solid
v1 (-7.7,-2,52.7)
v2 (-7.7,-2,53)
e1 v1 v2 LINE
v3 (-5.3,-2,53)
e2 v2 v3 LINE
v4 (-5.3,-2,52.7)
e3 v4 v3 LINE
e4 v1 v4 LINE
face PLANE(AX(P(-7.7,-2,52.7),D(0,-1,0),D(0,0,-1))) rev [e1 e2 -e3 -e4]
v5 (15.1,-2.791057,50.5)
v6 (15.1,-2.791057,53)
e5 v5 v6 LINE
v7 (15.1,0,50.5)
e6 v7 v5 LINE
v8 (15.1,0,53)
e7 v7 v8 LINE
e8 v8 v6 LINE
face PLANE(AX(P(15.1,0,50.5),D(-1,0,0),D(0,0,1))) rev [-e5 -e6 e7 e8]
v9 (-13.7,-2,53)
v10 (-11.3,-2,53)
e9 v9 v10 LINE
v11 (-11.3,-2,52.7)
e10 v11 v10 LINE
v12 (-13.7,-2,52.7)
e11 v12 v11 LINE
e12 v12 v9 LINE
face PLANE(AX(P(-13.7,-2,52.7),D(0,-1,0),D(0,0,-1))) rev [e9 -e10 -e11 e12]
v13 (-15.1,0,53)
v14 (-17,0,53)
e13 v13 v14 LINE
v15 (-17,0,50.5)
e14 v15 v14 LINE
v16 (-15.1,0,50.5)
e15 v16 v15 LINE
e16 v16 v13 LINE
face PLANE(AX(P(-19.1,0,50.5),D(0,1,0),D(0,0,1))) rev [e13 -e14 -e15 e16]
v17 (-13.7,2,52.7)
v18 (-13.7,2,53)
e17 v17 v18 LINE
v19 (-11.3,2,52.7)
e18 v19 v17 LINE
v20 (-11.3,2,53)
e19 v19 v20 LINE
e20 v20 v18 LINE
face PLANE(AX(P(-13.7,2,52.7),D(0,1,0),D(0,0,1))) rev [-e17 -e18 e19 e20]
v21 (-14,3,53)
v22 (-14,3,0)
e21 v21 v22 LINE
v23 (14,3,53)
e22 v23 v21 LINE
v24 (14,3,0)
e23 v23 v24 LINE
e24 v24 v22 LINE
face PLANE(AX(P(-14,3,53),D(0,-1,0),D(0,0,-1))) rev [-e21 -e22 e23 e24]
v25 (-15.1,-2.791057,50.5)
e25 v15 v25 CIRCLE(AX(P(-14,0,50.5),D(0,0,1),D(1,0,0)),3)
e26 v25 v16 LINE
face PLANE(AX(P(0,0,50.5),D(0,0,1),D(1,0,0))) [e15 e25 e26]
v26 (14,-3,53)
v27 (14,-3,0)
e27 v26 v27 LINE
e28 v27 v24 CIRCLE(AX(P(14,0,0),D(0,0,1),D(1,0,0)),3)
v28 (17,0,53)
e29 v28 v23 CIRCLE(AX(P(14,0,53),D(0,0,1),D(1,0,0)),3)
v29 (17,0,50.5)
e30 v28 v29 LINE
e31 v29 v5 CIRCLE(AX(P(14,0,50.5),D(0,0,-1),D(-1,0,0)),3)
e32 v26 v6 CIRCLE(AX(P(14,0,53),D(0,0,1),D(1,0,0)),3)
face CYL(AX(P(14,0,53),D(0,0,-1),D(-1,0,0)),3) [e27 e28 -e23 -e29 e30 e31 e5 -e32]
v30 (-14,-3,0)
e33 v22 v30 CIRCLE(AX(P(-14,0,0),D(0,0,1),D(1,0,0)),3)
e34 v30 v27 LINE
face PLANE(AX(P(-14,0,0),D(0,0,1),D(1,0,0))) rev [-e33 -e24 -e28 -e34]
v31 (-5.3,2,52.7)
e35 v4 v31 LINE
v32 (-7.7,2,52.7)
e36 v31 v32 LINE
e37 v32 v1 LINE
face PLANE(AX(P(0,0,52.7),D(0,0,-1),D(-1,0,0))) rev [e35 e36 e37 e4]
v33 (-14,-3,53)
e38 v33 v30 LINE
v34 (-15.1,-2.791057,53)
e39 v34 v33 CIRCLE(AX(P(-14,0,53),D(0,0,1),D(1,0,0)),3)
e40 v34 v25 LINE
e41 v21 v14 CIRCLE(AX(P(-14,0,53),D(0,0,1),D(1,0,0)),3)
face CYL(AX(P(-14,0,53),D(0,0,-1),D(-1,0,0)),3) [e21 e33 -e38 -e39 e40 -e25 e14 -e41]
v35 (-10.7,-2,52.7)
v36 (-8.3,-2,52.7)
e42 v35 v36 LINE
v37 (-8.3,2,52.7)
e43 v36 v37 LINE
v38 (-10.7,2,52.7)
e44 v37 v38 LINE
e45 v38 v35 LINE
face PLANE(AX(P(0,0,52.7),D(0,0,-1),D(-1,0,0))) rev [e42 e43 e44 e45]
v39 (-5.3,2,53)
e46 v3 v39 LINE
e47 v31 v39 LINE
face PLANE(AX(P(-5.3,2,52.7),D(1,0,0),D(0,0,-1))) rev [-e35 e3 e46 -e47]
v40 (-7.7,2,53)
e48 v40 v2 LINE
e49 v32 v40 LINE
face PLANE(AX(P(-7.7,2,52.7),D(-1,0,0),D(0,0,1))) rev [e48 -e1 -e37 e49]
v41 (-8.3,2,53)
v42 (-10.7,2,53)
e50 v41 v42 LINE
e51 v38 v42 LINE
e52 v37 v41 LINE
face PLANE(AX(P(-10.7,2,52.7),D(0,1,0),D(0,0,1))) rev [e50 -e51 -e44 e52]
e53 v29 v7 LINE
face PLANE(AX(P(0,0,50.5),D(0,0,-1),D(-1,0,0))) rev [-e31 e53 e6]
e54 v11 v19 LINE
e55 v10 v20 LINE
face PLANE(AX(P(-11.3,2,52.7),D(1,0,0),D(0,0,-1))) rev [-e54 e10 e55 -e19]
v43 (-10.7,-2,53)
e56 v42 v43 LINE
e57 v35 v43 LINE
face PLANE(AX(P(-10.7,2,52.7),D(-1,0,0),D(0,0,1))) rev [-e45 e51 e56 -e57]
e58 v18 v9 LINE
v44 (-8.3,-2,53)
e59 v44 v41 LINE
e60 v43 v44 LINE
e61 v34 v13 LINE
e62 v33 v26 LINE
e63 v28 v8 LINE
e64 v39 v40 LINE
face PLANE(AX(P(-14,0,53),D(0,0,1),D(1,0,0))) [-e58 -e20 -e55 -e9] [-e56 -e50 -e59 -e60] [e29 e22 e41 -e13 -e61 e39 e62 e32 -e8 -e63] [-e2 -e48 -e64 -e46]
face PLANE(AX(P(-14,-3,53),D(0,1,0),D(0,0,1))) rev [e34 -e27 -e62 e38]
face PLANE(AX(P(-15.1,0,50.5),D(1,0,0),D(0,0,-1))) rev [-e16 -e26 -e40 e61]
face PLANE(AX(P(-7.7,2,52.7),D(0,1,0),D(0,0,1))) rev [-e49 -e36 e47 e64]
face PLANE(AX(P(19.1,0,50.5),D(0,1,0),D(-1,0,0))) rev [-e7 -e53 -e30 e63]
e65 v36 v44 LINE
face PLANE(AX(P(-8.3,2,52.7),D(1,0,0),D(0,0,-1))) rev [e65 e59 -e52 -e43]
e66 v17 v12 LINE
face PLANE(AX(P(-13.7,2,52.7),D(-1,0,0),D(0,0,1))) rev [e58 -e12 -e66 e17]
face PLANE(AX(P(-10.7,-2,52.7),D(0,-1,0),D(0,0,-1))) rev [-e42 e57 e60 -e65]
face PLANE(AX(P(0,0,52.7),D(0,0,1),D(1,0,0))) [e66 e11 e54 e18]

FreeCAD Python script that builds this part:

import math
import FreeCAD as App
import Part
import Sketcher
from FreeCAD import Vector


def add_polygon(sketch, points):
    """Adds a closed chain of lines whose ends are joined by coincident constraints."""
    first, n = sketch.GeometryCount, len(points)
    for a, b in zip(points, points[1:] + points[:1]):
        sketch.addGeometry(Part.LineSegment(App.Vector(*a, 0), App.Vector(*b, 0)), False)
    for i in range(n):
        sketch.addConstraint(Sketcher.Constraint("Coincident", first + i, 2, first + (i + 1) % n, 1))

doc = App.newDocument("Part")
body = doc.addObject("PartDesign::Body", "Body")

sketch1 = body.newObject("Sketcher::SketchObject", "Sketch")
sketch1.AttachmentSupport = (doc.getObject("XY_Plane"), [""])
sketch1.MapMode = "FlatFace"
sketch1.addGeometry(Part.LineSegment(Vector(14, 3, 0), Vector(-14, 3, 0)), False)
sketch1.addGeometry(Part.ArcOfCircle(Part.Circle(Vector(-14, 0, 0), Vector(0, 0, 1), 3), math.radians(90), math.radians(270)), False)
sketch1.addGeometry(Part.LineSegment(Vector(-14, -3, 0), Vector(14, -3, 0)), False)
sketch1.addGeometry(Part.ArcOfCircle(Part.Circle(Vector(14, 0, 0), Vector(0, 0, 1), 3), math.radians(-90), math.radians(90)), False)
sketch1.addConstraint(Sketcher.Constraint("Tangent", 0, 2, 1, 1))
sketch1.addConstraint(Sketcher.Constraint("Tangent", 1, 2, 2, 1))
sketch1.addConstraint(Sketcher.Constraint("Tangent", 2, 2, 3, 1))
sketch1.addConstraint(Sketcher.Constraint("Tangent", 3, 2, 0, 1))
sketch1.addConstraint(Sketcher.Constraint("Horizontal", 0))
sketch1.addConstraint(Sketcher.Constraint("Horizontal", 2))
sketch1.addConstraint(Sketcher.Constraint("Symmetric", 1, 3, 3, 3, -1, 1))
sketch1.addConstraint(Sketcher.Constraint("Radius", 1, 3.0))
sketch1.addConstraint(Sketcher.Constraint("DistanceX", 0, 2, 0, 1, 28.0))
pad1 = body.newObject("PartDesign::Pad", "Pad")
pad1.Profile = sketch1
pad1.Length = 53

sketch2 = body.newObject("Sketcher::SketchObject", "Sketch001")
sketch2.AttachmentSupport = (doc.getObject("XY_Plane"), [""])
sketch2.MapMode = "FlatFace"
sketch2.AttachmentOffset = App.Placement(Vector(0, 0, 53), App.Rotation())
add_polygon(sketch2, [(-13.7, 2), (-13.7, -2), (-11.3, -2), (-11.3, 2)])
add_polygon(sketch2, [(-10.7, 2), (-10.7, -2), (-8.3, -2), (-8.3, 2)])
add_polygon(sketch2, [(-7.7, 2), (-7.7, -2), (-5.3, -2), (-5.3, 2)])
sketch2.addConstraint(Sketcher.Constraint("Vertical", 0))
sketch2.addConstraint(Sketcher.Constraint("Horizontal", 1))
sketch2.addConstraint(Sketcher.Constraint("Vertical", 2))
sketch2.addConstraint(Sketcher.Constraint("Horizontal", 3))
sketch2.addConstraint(Sketcher.Constraint("Vertical", 4))
sketch2.addConstraint(Sketcher.Constraint("Horizontal", 5))
sketch2.addConstraint(Sketcher.Constraint("Vertical", 6))
sketch2.addConstraint(Sketcher.Constraint("Horizontal", 7))
sketch2.addConstraint(Sketcher.Constraint("Vertical", 8))
sketch2.addConstraint(Sketcher.Constraint("Horizontal", 9))
sketch2.addConstraint(Sketcher.Constraint("Vertical", 10))
sketch2.addConstraint(Sketcher.Constraint("Horizontal", 11))
sketch2.addConstraint(Sketcher.Constraint("Horizontal", 1, 2, 4, 2))
sketch2.addConstraint(Sketcher.Constraint("Horizontal", 3, 2, 6, 2))
sketch2.addConstraint(Sketcher.Constraint("Horizontal", 5, 2, 8, 2))
sketch2.addConstraint(Sketcher.Constraint("Horizontal", 7, 2, 10, 2))
sketch2.addConstraint(Sketcher.Constraint("Equal", 3, 5))
sketch2.addConstraint(Sketcher.Constraint("Equal", 7, 9))
sketch2.addConstraint(Sketcher.Constraint("DistanceY", 0, 2, 0, 1, 4.0))
sketch2.addConstraint(Sketcher.Constraint("DistanceX", 1, 1, 1, 2, 2.4))
sketch2.addConstraint(Sketcher.Constraint("DistanceY", 0, 2, -1, 1, 2.0))
sketch2.addConstraint(Sketcher.Constraint("DistanceX", 0, 2, 4, 2, 3.0))
sketch2.addConstraint(Sketcher.Constraint("DistanceX", 4, 2, 8, 2, 3.0))
sketch2.addConstraint(Sketcher.Constraint("DistanceX", 0, 2, -1, 1, 13.7))
pocket1 = body.newObject("PartDesign::Pocket", "Pocket")
pocket1.Profile = sketch2
pocket1.Length = 0.3

sketch3 = body.newObject("Sketcher::SketchObject", "Sketch002")
sketch3.AttachmentSupport = (doc.getObject("XY_Plane"), [""])
sketch3.MapMode = "FlatFace"
sketch3.AttachmentOffset = App.Placement(Vector(0, 0, 53), App.Rotation())
add_polygon(sketch3, [(-19.1, 0), (-19.1, -4), (-15.1, -4), (-15.1, 0)])
add_polygon(sketch3, [(15.1, 0), (15.1, -4), (19.1, -4), (19.1, 0)])
sketch3.addConstraint(Sketcher.Constraint("Vertical", 0))
sketch3.addConstraint(Sketcher.Constraint("Horizontal", 1))
sketch3.addConstraint(Sketcher.Constraint("Vertical", 2))
sketch3.addConstraint(Sketcher.Constraint("Horizontal", 3))
sketch3.addConstraint(Sketcher.Constraint("Vertical", 4))
sketch3.addConstraint(Sketcher.Constraint("Horizontal", 5))
sketch3.addConstraint(Sketcher.Constraint("Vertical", 6))
sketch3.addConstraint(Sketcher.Constraint("Horizontal", 7))
sketch3.addConstraint(Sketcher.Constraint("Symmetric", 3, 2, 6, 2, -1, 1))
sketch3.addConstraint(Sketcher.Constraint("Symmetric", 1, 2, 4, 2, -2))
sketch3.addConstraint(Sketcher.Constraint("PointOnObject", 2, 2, -1))
sketch3.addConstraint(Sketcher.Constraint("Equal", 7, 0))
sketch3.addConstraint(Sketcher.Constraint("DistanceX", 1, 1, 1, 2, 4.0))
sketch3.addConstraint(Sketcher.Constraint("DistanceX", 0, 2, -1, 1, 19.1))
pocket2 = body.newObject("PartDesign::Pocket", "Pocket001")
pocket2.Profile = sketch3
pocket2.Length = 2.5

doc.recompute()
